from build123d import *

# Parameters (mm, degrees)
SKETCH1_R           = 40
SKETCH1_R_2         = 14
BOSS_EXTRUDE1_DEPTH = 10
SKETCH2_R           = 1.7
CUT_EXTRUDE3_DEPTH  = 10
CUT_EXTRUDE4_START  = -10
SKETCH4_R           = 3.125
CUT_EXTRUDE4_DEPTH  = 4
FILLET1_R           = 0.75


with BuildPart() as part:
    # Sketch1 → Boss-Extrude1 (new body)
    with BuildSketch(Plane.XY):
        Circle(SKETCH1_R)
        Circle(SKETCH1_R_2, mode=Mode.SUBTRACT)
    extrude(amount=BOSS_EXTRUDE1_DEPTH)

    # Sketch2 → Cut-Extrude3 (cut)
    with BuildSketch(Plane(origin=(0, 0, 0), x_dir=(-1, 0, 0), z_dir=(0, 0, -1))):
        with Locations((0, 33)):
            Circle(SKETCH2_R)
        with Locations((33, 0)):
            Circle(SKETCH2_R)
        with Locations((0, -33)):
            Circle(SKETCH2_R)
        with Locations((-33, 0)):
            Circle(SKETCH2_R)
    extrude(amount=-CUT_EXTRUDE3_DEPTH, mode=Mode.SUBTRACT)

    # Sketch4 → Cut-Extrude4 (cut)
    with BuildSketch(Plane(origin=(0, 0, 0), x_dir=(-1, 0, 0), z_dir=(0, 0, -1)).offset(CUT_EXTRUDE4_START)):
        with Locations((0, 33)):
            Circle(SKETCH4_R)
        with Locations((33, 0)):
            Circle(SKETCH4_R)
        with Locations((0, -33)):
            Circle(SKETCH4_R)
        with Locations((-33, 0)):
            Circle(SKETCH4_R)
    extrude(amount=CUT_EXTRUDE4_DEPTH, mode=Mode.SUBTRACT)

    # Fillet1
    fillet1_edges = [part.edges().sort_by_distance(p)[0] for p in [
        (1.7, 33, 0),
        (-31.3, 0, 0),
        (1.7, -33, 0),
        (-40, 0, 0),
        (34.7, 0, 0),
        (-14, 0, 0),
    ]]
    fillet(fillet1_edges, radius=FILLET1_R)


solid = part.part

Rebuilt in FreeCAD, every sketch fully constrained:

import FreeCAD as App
import Part
import Sketcher
Q = App.Units.Quantity


def edges_at(feature, points):
    """Names of the edges that pass closest to the given points."""
    edges = feature.Shape.Edges
    near = lambda p: min(range(len(edges)), key=lambda i: edges[i].distToShape(Part.Vertex(*p))[0])
    return sorted({f"Edge{near(p) + 1}" for p in points})

doc = App.newDocument("Part")
params = doc.addObject("Spreadsheet::Sheet", "Params")
for row, (alias, value) in enumerate([
    ("sketch1_diameter", "80 mm"),
    ("sketch1_diameter2", "28 mm"),
    ("pad1_length", "10 mm"),
    ("sketch2_diameter", "3.4 mm"),
    ("pocket1_length", "10 mm"),
    ("sketch3_diameter", "6.25 mm"),
    ("pocket2_length", "4 mm"),
    ("fillet_radius", "0.75 mm"),
], start=1):
    params.set(f"A{row}", alias)
    params.set(f"B{row}", "=" + value)
    params.setAlias(f"B{row}", alias)

body = doc.addObject("PartDesign::Body", "Body")

sketch1 = doc.addObject("Sketcher::SketchObject", "Sketch")
body.addObject(sketch1)
sketch1.AttachmentSupport = (doc.XY_Plane, [""])
sketch1.MapMode = "FlatFace"
sketch1.addGeometry(Part.Circle(App.Vector(0, 0, 0), App.Vector(0, 0, 1), 40), False)
sketch1.addGeometry(Part.Circle(App.Vector(0, 0, 0), App.Vector(0, 0, 1), 14), False)
sketch1.addConstraint(Sketcher.Constraint("Coincident", 0, 3, -1, 1))
sketch1.addConstraint(Sketcher.Constraint("Coincident", 1, 3, -1, 1))
sketch1.addConstraint(Sketcher.Constraint("Diameter", 0, Q("80 mm")))
sketch1.addConstraint(Sketcher.Constraint("Diameter", 1, Q("28 mm")))
sketch1.setExpression("Constraints[2]", "Params.sketch1_diameter")
sketch1.setExpression("Constraints[3]", "Params.sketch1_diameter2")
pad1 = doc.addObject("PartDesign::Pad", "Pad")
body.addObject(pad1)
pad1.Profile = sketch1
pad1.setExpression("Length", "Params.pad1_length")

sketch2 = doc.addObject("Sketcher::SketchObject", "Sketch001")
body.addObject(sketch2)
sketch2.AttachmentSupport = (doc.XY_Plane, [""])
sketch2.MapMode = "FlatFace"
sketch2.addGeometry(Part.Circle(App.Vector(0, 33, 0), App.Vector(0, 0, 1), 1.7), False)
sketch2.addGeometry(Part.Circle(App.Vector(-33, 0, 0), App.Vector(0, 0, 1), 1.7), False)
sketch2.addGeometry(Part.Circle(App.Vector(0, -33, 0), App.Vector(0, 0, 1), 1.7), False)
sketch2.addGeometry(Part.Circle(App.Vector(33, 0, 0), App.Vector(0, 0, 1), 1.7), False)
sketch2.addConstraint(Sketcher.Constraint("Equal", 0, 1))
sketch2.addConstraint(Sketcher.Constraint("Equal", 1, 2))
sketch2.addConstraint(Sketcher.Constraint("Equal", 2, 3))
sketch2.addConstraint(Sketcher.Constraint("Symmetric", 0, 3, 2, 3, -1, 1))
sketch2.addConstraint(Sketcher.Constraint("Symmetric", 1, 3, 3, 3, -1, 1))
sketch2.addConstraint(Sketcher.Constraint("PointOnObject", 0, 3, -2))
sketch2.addConstraint(Sketcher.Constraint("PointOnObject", 1, 3, -1))
sketch2.addConstraint(Sketcher.Constraint("Diameter", 0, Q("3.4 mm")))
sketch2.addConstraint(Sketcher.Constraint("DistanceY", -1, 1, 0, 3, Q("33 mm")))
sketch2.addConstraint(Sketcher.Constraint("DistanceX", 1, 3, -1, 1, Q("33 mm")))
sketch2.setExpression("Constraints[7]", "Params.sketch2_diameter")
pocket1 = doc.addObject("PartDesign::Pocket", "Pocket")
body.addObject(pocket1)
pocket1.Profile = sketch2
pocket1.setExpression("Length", "Params.pocket1_length")
pocket1.Reversed = True

sketch3 = doc.addObject("Sketcher::SketchObject", "Sketch002")
body.addObject(sketch3)
sketch3.AttachmentSupport = (doc.XY_Plane, [""])
sketch3.MapMode = "FlatFace"
sketch3.AttachmentOffset = App.Placement(App.Vector(0, 0, 10), App.Rotation())
sketch3.addGeometry(Part.Circle(App.Vector(0, 33, 0), App.Vector(0, 0, 1), 3.125), False)
sketch3.addGeometry(Part.Circle(App.Vector(-33, 0, 0), App.Vector(0, 0, 1), 3.125), False)
sketch3.addGeometry(Part.Circle(App.Vector(0, -33, 0), App.Vector(0, 0, 1), 3.125), False)
sketch3.addGeometry(Part.Circle(App.Vector(33, 0, 0), App.Vector(0, 0, 1), 3.125), False)
sketch3.addConstraint(Sketcher.Constraint("Equal", 0, 1))
sketch3.addConstraint(Sketcher.Constraint("Equal", 1, 2))
sketch3.addConstraint(Sketcher.Constraint("Equal", 2, 3))
sketch3.addConstraint(Sketcher.Constraint("Symmetric", 0, 3, 2, 3, -1, 1))
sketch3.addConstraint(Sketcher.Constraint("Symmetric", 1, 3, 3, 3, -1, 1))
sketch3.addConstraint(Sketcher.Constraint("PointOnObject", 0, 3, -2))
sketch3.addConstraint(Sketcher.Constraint("PointOnObject", 1, 3, -1))
sketch3.addConstraint(Sketcher.Constraint("Diameter", 0, Q("6.25 mm")))
sketch3.addConstraint(Sketcher.Constraint("DistanceY", -1, 1, 0, 3, Q("33 mm")))
sketch3.addConstraint(Sketcher.Constraint("DistanceX", 1, 3, -1, 1, Q("33 mm")))
sketch3.setExpression("Constraints[7]", "Params.sketch3_diameter")
pocket2 = doc.addObject("PartDesign::Pocket", "Pocket001")
body.addObject(pocket2)
pocket2.Profile = sketch3
pocket2.setExpression("Length", "Params.pocket2_length")
doc.recompute()

fillet = doc.addObject("PartDesign::Fillet", "Fillet")
body.addObject(fillet)
fillet.Base = (pocket2, edges_at(pocket2, [
    (1.7, 33, 0),
    (-31.3, 0, 0),
    (1.7, -33, 0),
    (-40, 0, 0),
    (34.7, 0, 0),
    (-14, 0, 0),
]))
fillet.setExpression("Radius", "Params.fillet_radius")

doc.recompute()
